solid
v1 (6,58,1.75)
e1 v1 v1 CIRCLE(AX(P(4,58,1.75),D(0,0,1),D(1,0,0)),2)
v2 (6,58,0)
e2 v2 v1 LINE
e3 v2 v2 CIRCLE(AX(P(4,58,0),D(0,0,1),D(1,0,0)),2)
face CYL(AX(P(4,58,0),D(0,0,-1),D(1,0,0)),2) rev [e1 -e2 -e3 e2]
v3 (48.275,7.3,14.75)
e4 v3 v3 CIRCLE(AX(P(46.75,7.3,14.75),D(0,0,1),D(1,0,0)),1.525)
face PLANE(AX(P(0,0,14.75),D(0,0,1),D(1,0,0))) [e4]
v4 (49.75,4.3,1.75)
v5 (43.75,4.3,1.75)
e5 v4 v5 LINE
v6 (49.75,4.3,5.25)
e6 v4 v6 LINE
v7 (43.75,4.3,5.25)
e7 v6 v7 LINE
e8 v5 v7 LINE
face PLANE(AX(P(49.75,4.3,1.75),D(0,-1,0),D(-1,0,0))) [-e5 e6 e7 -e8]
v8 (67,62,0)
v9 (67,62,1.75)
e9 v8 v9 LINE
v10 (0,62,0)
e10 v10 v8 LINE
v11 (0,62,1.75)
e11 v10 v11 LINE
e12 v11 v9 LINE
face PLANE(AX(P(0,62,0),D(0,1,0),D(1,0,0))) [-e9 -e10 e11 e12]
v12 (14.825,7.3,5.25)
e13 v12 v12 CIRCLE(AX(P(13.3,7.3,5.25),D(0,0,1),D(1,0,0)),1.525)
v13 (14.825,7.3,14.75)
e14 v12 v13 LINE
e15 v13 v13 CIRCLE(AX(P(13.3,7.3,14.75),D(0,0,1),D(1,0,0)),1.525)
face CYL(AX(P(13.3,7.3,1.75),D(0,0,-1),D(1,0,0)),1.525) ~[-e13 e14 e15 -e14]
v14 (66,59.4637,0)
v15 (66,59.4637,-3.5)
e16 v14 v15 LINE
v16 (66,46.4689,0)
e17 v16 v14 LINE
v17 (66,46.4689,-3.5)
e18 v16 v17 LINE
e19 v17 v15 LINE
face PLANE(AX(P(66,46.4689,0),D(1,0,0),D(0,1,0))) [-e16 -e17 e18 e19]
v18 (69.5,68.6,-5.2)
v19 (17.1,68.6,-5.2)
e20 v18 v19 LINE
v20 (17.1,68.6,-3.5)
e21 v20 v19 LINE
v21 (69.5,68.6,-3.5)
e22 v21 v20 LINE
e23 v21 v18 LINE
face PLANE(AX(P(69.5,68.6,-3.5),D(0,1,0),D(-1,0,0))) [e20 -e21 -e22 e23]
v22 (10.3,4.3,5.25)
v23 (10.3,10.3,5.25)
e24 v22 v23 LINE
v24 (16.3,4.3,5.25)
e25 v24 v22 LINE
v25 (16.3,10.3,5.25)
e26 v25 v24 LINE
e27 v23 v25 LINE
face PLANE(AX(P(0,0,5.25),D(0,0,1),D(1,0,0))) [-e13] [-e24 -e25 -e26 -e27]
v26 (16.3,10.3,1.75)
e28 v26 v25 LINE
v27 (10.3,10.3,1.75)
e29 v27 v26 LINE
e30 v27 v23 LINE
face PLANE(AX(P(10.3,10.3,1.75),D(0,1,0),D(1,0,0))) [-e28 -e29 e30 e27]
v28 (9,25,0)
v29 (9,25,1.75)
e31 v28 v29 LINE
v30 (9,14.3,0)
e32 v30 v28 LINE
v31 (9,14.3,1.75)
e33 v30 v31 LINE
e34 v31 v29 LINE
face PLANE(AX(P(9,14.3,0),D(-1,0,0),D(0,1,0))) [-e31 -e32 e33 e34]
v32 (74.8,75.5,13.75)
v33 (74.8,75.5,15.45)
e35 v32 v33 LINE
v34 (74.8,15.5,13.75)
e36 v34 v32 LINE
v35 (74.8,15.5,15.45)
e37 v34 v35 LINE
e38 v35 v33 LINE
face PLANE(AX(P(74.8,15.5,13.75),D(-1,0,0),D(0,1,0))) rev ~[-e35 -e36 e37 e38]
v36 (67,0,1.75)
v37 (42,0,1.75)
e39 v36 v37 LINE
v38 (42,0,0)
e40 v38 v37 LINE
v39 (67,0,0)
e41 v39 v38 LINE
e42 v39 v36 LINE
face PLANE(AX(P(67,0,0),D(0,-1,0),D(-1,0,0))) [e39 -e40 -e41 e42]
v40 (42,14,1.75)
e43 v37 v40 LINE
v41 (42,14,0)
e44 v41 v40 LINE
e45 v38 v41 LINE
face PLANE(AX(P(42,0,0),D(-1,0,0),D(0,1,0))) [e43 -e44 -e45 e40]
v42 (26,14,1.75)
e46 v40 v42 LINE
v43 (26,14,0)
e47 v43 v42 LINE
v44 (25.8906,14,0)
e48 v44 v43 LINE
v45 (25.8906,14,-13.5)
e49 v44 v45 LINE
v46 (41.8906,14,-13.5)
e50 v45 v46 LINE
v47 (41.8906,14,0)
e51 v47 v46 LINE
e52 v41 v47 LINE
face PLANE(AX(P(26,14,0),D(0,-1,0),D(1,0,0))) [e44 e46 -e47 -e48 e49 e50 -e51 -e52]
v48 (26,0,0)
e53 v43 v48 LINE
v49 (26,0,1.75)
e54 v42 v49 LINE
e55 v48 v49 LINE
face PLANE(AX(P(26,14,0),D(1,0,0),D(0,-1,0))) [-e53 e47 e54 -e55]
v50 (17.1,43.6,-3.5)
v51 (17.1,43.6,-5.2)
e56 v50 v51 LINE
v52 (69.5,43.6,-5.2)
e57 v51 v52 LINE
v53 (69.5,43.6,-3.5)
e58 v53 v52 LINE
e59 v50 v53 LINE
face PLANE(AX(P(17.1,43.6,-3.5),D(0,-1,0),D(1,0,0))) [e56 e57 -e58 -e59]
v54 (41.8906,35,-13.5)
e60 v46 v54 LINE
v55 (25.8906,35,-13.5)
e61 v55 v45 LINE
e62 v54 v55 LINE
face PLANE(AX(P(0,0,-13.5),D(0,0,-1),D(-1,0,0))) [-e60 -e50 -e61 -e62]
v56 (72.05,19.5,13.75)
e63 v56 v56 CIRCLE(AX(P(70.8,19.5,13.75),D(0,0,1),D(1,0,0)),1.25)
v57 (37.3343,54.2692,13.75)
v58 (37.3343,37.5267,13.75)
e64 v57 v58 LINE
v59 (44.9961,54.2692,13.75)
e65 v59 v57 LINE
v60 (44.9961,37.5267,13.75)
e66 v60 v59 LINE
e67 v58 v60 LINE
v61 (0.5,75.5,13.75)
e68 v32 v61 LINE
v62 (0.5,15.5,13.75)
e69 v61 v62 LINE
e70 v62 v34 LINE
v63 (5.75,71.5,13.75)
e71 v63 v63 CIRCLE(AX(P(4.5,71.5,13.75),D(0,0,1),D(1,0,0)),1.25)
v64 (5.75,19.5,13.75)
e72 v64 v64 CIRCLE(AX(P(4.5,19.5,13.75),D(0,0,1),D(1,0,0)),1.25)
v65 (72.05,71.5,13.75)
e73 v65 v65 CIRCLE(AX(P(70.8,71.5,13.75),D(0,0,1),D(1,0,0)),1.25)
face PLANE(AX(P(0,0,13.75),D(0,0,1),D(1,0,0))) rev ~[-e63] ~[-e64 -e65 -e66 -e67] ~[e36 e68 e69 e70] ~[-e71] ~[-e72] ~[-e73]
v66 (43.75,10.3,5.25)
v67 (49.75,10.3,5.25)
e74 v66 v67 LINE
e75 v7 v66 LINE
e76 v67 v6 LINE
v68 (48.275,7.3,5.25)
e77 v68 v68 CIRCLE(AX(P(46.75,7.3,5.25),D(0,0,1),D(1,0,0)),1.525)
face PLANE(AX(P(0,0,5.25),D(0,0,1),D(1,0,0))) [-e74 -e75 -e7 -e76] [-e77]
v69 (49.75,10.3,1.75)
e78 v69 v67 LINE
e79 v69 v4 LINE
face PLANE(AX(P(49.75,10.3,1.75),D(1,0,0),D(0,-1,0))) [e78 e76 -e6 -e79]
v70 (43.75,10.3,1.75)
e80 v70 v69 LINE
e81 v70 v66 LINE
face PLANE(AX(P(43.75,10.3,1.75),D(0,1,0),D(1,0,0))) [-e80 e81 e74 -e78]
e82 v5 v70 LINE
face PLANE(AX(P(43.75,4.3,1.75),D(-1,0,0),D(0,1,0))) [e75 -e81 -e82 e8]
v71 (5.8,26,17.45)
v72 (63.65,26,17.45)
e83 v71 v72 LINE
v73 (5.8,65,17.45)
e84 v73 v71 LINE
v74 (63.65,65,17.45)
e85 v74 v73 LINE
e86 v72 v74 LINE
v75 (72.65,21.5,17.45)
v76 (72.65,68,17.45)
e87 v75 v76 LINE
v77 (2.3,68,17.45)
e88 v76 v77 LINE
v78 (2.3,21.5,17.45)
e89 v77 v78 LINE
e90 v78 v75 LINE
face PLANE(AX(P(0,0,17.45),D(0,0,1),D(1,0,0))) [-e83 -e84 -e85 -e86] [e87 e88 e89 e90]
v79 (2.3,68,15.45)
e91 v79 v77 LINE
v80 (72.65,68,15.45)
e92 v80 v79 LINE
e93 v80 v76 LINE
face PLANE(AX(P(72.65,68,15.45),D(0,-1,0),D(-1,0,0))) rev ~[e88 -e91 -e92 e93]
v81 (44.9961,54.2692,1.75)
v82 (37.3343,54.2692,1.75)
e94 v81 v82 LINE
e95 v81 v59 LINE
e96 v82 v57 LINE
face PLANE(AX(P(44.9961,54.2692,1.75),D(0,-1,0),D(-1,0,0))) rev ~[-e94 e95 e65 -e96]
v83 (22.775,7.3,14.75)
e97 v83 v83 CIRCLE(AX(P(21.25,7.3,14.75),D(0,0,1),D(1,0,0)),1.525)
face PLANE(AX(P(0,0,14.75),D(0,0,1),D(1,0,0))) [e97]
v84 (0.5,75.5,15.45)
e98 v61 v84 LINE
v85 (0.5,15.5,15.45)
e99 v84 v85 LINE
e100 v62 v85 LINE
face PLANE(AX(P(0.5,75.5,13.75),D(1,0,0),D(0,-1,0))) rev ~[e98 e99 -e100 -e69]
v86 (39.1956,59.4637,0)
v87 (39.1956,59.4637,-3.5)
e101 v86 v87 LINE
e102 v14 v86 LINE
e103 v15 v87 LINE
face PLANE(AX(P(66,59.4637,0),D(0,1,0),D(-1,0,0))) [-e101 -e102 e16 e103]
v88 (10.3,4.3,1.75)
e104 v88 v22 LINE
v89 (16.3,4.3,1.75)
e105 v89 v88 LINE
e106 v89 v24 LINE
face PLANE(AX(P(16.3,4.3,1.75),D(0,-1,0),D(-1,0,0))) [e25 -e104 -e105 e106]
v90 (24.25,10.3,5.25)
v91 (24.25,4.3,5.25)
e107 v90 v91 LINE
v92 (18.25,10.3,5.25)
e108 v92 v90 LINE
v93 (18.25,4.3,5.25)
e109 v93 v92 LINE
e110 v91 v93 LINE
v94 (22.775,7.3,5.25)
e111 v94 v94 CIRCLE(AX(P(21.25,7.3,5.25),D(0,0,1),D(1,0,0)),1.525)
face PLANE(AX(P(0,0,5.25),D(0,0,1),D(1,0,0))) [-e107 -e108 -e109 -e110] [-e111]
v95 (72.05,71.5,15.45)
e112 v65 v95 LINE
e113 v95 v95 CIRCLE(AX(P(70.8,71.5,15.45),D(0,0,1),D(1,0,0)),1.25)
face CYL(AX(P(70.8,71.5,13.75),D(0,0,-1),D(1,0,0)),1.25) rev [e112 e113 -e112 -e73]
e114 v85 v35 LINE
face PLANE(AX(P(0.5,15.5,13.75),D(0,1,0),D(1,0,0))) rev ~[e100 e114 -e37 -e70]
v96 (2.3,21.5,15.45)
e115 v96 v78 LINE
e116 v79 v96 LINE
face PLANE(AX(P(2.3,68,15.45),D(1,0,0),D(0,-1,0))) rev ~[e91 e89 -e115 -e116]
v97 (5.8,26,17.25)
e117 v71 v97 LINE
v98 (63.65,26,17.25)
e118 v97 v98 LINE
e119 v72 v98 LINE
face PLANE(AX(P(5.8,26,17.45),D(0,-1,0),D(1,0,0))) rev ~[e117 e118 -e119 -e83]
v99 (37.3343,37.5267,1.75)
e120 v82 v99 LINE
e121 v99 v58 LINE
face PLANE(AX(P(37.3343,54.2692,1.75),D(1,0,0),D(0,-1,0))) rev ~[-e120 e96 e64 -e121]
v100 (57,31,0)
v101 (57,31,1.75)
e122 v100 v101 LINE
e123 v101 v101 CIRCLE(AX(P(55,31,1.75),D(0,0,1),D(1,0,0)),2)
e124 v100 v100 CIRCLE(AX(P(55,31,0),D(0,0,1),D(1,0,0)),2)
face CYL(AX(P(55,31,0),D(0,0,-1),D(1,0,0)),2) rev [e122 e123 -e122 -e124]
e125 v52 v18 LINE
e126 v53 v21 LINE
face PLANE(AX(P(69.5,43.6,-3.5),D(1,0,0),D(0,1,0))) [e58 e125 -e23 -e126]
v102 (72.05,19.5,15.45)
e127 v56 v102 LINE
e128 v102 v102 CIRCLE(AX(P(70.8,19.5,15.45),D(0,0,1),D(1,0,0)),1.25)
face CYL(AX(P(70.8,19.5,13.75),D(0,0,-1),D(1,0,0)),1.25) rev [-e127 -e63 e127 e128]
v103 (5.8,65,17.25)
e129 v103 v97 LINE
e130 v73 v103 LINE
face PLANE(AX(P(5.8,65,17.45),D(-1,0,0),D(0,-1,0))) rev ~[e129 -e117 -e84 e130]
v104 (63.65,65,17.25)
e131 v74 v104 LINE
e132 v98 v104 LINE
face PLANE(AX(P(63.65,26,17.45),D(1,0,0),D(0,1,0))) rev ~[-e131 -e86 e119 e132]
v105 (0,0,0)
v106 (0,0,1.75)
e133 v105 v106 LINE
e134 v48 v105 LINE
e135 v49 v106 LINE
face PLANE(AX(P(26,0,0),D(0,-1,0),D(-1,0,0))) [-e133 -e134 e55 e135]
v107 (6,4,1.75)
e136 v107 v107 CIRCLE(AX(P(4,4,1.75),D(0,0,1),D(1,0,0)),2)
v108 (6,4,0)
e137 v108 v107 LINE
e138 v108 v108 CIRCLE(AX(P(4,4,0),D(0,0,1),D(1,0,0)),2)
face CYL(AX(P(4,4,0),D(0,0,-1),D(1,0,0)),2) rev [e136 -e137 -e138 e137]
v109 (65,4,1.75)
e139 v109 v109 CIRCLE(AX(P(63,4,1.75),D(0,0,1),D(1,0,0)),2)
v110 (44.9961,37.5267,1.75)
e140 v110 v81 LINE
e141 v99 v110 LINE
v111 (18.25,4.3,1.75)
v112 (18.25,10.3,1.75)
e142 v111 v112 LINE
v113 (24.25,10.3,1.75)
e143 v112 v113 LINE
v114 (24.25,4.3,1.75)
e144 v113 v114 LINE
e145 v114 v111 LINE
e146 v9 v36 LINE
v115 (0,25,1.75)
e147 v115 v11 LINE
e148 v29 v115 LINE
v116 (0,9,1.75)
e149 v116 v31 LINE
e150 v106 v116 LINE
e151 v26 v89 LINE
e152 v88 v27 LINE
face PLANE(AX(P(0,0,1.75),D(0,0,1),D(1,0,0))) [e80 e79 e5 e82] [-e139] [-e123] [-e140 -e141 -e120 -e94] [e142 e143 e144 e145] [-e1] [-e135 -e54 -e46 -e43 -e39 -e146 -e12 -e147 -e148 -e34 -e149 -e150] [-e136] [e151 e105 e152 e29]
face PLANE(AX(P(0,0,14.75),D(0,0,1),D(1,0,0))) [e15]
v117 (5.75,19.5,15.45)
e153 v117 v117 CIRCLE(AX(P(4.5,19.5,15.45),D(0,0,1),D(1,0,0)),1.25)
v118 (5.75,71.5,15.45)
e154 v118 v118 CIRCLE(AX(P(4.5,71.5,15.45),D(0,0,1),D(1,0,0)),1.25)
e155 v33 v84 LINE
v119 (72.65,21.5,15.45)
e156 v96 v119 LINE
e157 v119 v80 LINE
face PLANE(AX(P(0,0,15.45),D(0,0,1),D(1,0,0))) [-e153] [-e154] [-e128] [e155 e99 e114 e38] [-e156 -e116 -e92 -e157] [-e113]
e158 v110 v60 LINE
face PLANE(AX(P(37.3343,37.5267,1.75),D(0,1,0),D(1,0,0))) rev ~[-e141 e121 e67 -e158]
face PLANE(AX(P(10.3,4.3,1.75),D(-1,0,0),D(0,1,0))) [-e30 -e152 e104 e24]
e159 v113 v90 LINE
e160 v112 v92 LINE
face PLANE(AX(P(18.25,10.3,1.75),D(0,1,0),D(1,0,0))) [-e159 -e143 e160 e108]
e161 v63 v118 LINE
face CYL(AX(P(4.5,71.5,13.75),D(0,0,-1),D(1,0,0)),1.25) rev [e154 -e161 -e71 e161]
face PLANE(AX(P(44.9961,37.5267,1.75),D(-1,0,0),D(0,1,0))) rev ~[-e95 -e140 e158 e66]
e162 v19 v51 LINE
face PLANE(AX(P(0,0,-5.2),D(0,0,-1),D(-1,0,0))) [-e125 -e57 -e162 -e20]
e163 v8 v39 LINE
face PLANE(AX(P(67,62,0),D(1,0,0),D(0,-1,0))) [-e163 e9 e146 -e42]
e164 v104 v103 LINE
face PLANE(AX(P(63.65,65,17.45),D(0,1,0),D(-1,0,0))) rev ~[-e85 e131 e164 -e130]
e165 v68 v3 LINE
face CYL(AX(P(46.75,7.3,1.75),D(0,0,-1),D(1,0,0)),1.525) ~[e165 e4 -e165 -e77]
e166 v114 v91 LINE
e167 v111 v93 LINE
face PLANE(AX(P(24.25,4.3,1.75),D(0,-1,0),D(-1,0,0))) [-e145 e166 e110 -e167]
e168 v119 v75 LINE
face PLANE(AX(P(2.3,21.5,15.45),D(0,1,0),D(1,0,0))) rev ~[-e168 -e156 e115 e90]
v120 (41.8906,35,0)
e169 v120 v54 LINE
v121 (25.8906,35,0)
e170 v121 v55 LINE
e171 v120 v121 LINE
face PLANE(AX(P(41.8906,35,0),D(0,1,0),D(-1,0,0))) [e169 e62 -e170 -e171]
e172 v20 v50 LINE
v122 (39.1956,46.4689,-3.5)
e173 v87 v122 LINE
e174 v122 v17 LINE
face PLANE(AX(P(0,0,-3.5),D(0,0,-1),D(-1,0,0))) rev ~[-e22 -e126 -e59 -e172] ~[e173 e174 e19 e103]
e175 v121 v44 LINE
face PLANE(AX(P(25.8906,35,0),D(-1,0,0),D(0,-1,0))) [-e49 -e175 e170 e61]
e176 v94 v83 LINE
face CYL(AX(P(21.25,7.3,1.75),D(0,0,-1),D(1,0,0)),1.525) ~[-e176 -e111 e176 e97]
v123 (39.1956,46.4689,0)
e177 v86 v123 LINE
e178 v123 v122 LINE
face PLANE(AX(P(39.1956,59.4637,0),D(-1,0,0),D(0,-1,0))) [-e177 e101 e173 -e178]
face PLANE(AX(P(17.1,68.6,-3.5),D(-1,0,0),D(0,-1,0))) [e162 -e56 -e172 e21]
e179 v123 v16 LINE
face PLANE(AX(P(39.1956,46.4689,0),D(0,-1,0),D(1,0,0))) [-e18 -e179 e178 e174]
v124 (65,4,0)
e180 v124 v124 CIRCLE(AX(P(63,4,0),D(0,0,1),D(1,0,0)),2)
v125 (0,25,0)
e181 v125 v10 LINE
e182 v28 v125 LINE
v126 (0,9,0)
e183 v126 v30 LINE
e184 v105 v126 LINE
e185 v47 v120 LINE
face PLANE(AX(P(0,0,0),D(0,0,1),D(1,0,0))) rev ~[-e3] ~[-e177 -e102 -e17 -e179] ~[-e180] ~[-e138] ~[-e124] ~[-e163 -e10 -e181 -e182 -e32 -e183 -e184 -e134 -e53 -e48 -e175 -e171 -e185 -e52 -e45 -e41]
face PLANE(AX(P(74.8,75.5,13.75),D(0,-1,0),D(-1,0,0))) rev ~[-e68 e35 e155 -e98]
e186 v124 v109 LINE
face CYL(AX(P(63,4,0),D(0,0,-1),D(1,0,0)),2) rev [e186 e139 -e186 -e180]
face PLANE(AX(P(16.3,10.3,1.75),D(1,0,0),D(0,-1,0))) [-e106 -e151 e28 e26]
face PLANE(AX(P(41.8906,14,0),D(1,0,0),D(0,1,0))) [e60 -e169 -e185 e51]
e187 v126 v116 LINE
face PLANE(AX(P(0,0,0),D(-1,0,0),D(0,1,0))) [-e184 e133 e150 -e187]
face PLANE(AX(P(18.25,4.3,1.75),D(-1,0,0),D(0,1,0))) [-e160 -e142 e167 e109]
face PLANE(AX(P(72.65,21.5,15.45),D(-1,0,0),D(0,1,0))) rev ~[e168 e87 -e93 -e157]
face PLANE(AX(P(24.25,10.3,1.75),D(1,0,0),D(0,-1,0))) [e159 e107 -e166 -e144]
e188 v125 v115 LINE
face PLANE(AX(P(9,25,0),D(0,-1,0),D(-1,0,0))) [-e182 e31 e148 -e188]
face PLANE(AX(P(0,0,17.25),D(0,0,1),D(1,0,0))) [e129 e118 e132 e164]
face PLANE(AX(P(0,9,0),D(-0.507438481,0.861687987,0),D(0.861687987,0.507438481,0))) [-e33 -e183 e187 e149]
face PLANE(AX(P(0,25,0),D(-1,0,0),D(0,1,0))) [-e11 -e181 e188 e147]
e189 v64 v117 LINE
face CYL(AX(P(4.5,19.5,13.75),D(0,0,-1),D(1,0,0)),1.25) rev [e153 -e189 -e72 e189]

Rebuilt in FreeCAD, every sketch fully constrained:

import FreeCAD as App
import Part
import Sketcher
from FreeCAD import Vector
Q = App.Units.Quantity

doc = App.newDocument("Part")
body = doc.addObject("PartDesign::Body", "Body")

sketch1 = body.newObject("Sketcher::SketchObject", "Sketch")
sketch1.AttachmentSupport = (doc.getObject("XY_Plane"), [""])
sketch1.MapMode = "FlatFace"
sketch1.addGeometry([
    Part.LineSegment(Vector(67, 62, 0), Vector(0, 62, 0)),
    Part.LineSegment(Vector(0, 62, 0), Vector(0, 25, 0)),
    Part.LineSegment(Vector(0, 25, 0), Vector(9, 25, 0)),
    Part.LineSegment(Vector(9, 25, 0), Vector(9, 14.3, 0)),
    Part.LineSegment(Vector(9, 14.3, 0), Vector(0, 9, 0)),
    Part.LineSegment(Vector(0, 9, 0), Vector(0, 0, 0)),
    Part.LineSegment(Vector(0, 0, 0), Vector(26, 0, 0)),
    Part.LineSegment(Vector(26, 0, 0), Vector(26, 14, 0)),
    Part.LineSegment(Vector(26, 14, 0), Vector(42, 14, 0)),
    Part.LineSegment(Vector(42, 14, 0), Vector(42, 0, 0)),
    Part.LineSegment(Vector(42, 0, 0), Vector(67, 0, 0)),
    Part.LineSegment(Vector(67, 0, 0), Vector(67, 62, 0)),
    Part.Circle(Vector(4, 4, 0), Vector(0, 0, 1), 2),
    Part.Circle(Vector(63, 4, 0), Vector(0, 0, 1), 2),
    Part.Circle(Vector(4, 58, 0), Vector(0, 0, 1), 2),
    Part.Circle(Vector(55, 31, 0), Vector(0, 0, 1), 2),
], False)
sketch1.addConstraint([
    Sketcher.Constraint("Coincident", 0, 2, 1, 1),
    Sketcher.Constraint("Coincident", 1, 2, 2, 1),
    Sketcher.Constraint("Coincident", 2, 2, 3, 1),
    Sketcher.Constraint("Coincident", 3, 2, 4, 1),
    Sketcher.Constraint("Coincident", 4, 2, 5, 1),
    Sketcher.Constraint("Coincident", 5, 2, 6, 1),
    Sketcher.Constraint("Coincident", 6, 2, 7, 1),
    Sketcher.Constraint("Coincident", 7, 2, 8, 1),
    Sketcher.Constraint("Coincident", 8, 2, 9, 1),
    Sketcher.Constraint("Coincident", 9, 2, 10, 1),
    Sketcher.Constraint("Coincident", 10, 2, 11, 1),
    Sketcher.Constraint("Coincident", 11, 2, 0, 1),
    Sketcher.Constraint("Horizontal", 0),
    Sketcher.Constraint("Vertical", 1),
    Sketcher.Constraint("Horizontal", 2),
    Sketcher.Constraint("Vertical", 3),
    Sketcher.Constraint("Vertical", 5),
    Sketcher.Constraint("Horizontal", 6),
    Sketcher.Constraint("Vertical", 7),
    Sketcher.Constraint("Horizontal", 8),
    Sketcher.Constraint("Vertical", 9),
    Sketcher.Constraint("Horizontal", 10),
    Sketcher.Constraint("Vertical", 11),
    Sketcher.Constraint("Coincident", 5, 2, -1, 1),
    Sketcher.Constraint("Equal", 12, 13),
    Sketcher.Constraint("Equal", 13, 14),
    Sketcher.Constraint("Equal", 14, 15),
    Sketcher.Constraint("PointOnObject", 0, 2, -2),
    Sketcher.Constraint("PointOnObject", 9, 2, -1),
    Sketcher.Constraint("Horizontal", 12, 3, 13, 3),
    Sketcher.Constraint("Vertical", 12, 3, 14, 3),
    Sketcher.Constraint("Equal", 2, 5),
    Sketcher.Constraint("Diameter", 12, Q("4 mm")),
    Sketcher.Constraint("DistanceX", 0, 2, 0, 1, Q("67 mm")),
    Sketcher.Constraint("DistanceX", 2, 1, 2, 2, Q("9 mm")),
    Sketcher.Constraint("DistanceX", 6, 1, 6, 2, Q("26 mm")),
    Sketcher.Constraint("DistanceX", 10, 1, 10, 2, Q("25 mm")),
    Sketcher.Constraint("DistanceY", 7, 1, 7, 2, Q("14 mm")),
    Sketcher.Constraint("DistanceY", 11, 1, 11, 2, Q("62 mm")),
    Sketcher.Constraint("DistanceX", -1, 1, 12, 3, Q("4 mm")),
    Sketcher.Constraint("DistanceY", -1, 1, 12, 3, Q("4 mm")),
    Sketcher.Constraint("DistanceX", -1, 1, 15, 3, Q("55 mm")),
    Sketcher.Constraint("DistanceY", -1, 1, 15, 3, Q("31 mm")),
    Sketcher.Constraint("DistanceY", -1, 1, 1, 2, Q("25 mm")),
    Sketcher.Constraint("DistanceY", 14, 3, 0, 2, Q("4 mm")),
    Sketcher.Constraint("DistanceX", 13, 3, 10, 2, Q("4 mm")),
    Sketcher.Constraint("DistanceY", -1, 1, 3, 2, Q("14.3 mm")),
])
pad1 = body.newObject("PartDesign::Pad", "Pad")
pad1.Profile = sketch1
pad1.Length = 1.75

sketch2 = body.newObject("Sketcher::SketchObject", "Sketch001")
sketch2.AttachmentSupport = (doc.getObject("XY_Plane"), [""])
sketch2.MapMode = "FlatFace"
sketch2.AttachmentOffset = App.Placement(Vector(0, 0, 1.75), App.Rotation())
sketch2.addGeometry([
    Part.LineSegment(Vector(49.8, 10.3, 0), Vector(43.8, 10.3, 0)),
    Part.LineSegment(Vector(43.8, 10.3, 0), Vector(43.8, 4.3, 0)),
    Part.LineSegment(Vector(43.8, 4.3, 0), Vector(49.8, 4.3, 0)),
    Part.LineSegment(Vector(49.8, 4.3, 0), Vector(49.8, 10.3, 0)),
    Part.Circle(Vector(46.8, 7.3, 0), Vector(0, 0, 1), 1.5),
    Part.LineSegment(Vector(24.2, 10.3, 0), Vector(18.2, 10.3, 0)),
    Part.LineSegment(Vector(18.2, 10.3, 0), Vector(18.2, 4.3, 0)),
    Part.LineSegment(Vector(18.2, 4.3, 0), Vector(24.2, 4.3, 0)),
    Part.LineSegment(Vector(24.2, 4.3, 0), Vector(24.2, 10.3, 0)),
    Part.Circle(Vector(21.2, 7.3, 0), Vector(0, 0, 1), 1.5),
    Part.LineSegment(Vector(16.3, 10.3, 0), Vector(10.3, 10.3, 0)),
    Part.LineSegment(Vector(10.3, 10.3, 0), Vector(10.3, 4.3, 0)),
    Part.LineSegment(Vector(10.3, 4.3, 0), Vector(16.3, 4.3, 0)),
    Part.LineSegment(Vector(16.3, 4.3, 0), Vector(16.3, 10.3, 0)),
    Part.Circle(Vector(13.3, 7.3, 0), Vector(0, 0, 1), 1.5),
], False)
sketch2.addConstraint([
    Sketcher.Constraint("Coincident", 0, 2, 1, 1),
    Sketcher.Constraint("Coincident", 1, 2, 2, 1),
    Sketcher.Constraint("Coincident", 2, 2, 3, 1),
    Sketcher.Constraint("Coincident", 3, 2, 0, 1),
    Sketcher.Constraint("Coincident", 5, 2, 6, 1),
    Sketcher.Constraint("Coincident", 6, 2, 7, 1),
    Sketcher.Constraint("Coincident", 7, 2, 8, 1),
    Sketcher.Constraint("Coincident", 8, 2, 5, 1),
    Sketcher.Constraint("Coincident", 10, 2, 11, 1),
    Sketcher.Constraint("Coincident", 11, 2, 12, 1),
    Sketcher.Constraint("Coincident", 12, 2, 13, 1),
    Sketcher.Constraint("Coincident", 13, 2, 10, 1),
    Sketcher.Constraint("Horizontal", 0),
    Sketcher.Constraint("Vertical", 1),
    Sketcher.Constraint("Horizontal", 2),
    Sketcher.Constraint("Vertical", 3),
    Sketcher.Constraint("Horizontal", 5),
    Sketcher.Constraint("Vertical", 6),
    Sketcher.Constraint("Horizontal", 7),
    Sketcher.Constraint("Vertical", 8),
    Sketcher.Constraint("Horizontal", 10),
    Sketcher.Constraint("Vertical", 11),
    Sketcher.Constraint("Horizontal", 12),
    Sketcher.Constraint("Vertical", 13),
    Sketcher.Constraint("Equal", 4, 9),
    Sketcher.Constraint("Equal", 9, 14),
    Sketcher.Constraint("Horizontal", 4, 3, 9, 3),
    Sketcher.Constraint("Horizontal", 9, 3, 14, 3),
    Sketcher.Constraint("Horizontal", 3, 2, 5, 2),
    Sketcher.Constraint("Horizontal", 2, 2, 6, 2),
    Sketcher.Constraint("Horizontal", 8, 2, 10, 2),
    Sketcher.Constraint("Horizontal", 7, 2, 11, 2),
    Sketcher.Constraint("Equal", 2, 5),
    Sketcher.Constraint("Equal", 7, 10),
    Sketcher.Constraint("Equal", 12, 1),
    Sketcher.Constraint("Diameter", 4, Q("3.05 mm")),
    Sketcher.Constraint("DistanceX", 0, 2, 0, 1, Q("6 mm")),
    Sketcher.Constraint("DistanceY", -1, 1, 4, 3, Q("7.3 mm")),
    Sketcher.Constraint("DistanceX", -1, 1, 14, 3, Q("13.3 mm")),
    Sketcher.Constraint("DistanceX", -1, 1, 4, 3, Q("46.75 mm")),
    Sketcher.Constraint("DistanceX", -1, 1, 9, 3, Q("21.25 mm")),
    Sketcher.Constraint("DistanceX", 0, 2, 4, 3, Q("3 mm")),
    Sketcher.Constraint("DistanceY", 4, 3, 0, 2, Q("3 mm")),
    Sketcher.Constraint("DistanceX", 5, 2, 9, 3, Q("3 mm")),
    Sketcher.Constraint("DistanceX", 10, 2, 14, 3, Q("3 mm")),
])
pad2 = body.newObject("PartDesign::Pad", "Pad001")
pad2.Profile = sketch2
pad2.Length = 3.5

sketch3 = body.newObject("Sketcher::SketchObject", "Sketch002")
sketch3.AttachmentSupport = (doc.getObject("XY_Plane"), [""])
sketch3.MapMode = "FlatFace"
sketch3.AttachmentOffset = App.Placement(Vector(0, 0, 1.75), App.Rotation())
sketch3.addGeometry([
    Part.Circle(Vector(13.3, 7.3, 0), Vector(0, 0, 1), 1.5),
    Part.Circle(Vector(21.2, 7.3, 0), Vector(0, 0, 1), 1.5),
    Part.Circle(Vector(46.8, 7.3, 0), Vector(0, 0, 1), 1.5),
], False)
sketch3.addConstraint([
    Sketcher.Constraint("Equal", 0, 1),
    Sketcher.Constraint("Equal", 1, 2),
    Sketcher.Constraint("Horizontal", 0, 3, 1, 3),
    Sketcher.Constraint("Horizontal", 1, 3, 2, 3),
    Sketcher.Constraint("Diameter", 0, Q("3.05 mm")),
    Sketcher.Constraint("DistanceX", -1, 1, 0, 3, Q("13.3 mm")),
    Sketcher.Constraint("DistanceY", -1, 1, 0, 3, Q("7.3 mm")),
    Sketcher.Constraint("DistanceX", -1, 1, 1, 3, Q("21.25 mm")),
    Sketcher.Constraint("DistanceX", -1, 1, 2, 3, Q("46.75 mm")),
])
pad3 = body.newObject("PartDesign::Pad", "Pad002")
pad3.Profile = sketch3
pad3.Length = 13

sketch4 = body.newObject("Sketcher::SketchObject", "Sketch003")
sketch4.AttachmentSupport = (doc.getObject("XY_Plane"), [""])
sketch4.MapMode = "FlatFace"
sketch4.AttachmentOffset = App.Placement(Vector(0, 0, 1.75), App.Rotation())
sketch4.addGeometry([
    Part.LineSegment(Vector(37, 54, 0), Vector(37, 38, 0)),
    Part.LineSegment(Vector(37, 38, 0), Vector(45, 38, 0)),
    Part.LineSegment(Vector(45, 38, 0), Vector(45, 54, 0)),
    Part.LineSegment(Vector(45, 54, 0), Vector(37, 54, 0)),
], False)
sketch4.addConstraint([
    Sketcher.Constraint("Coincident", 0, 2, 1, 1),
    Sketcher.Constraint("Coincident", 1, 2, 2, 1),
    Sketcher.Constraint("Coincident", 2, 2, 3, 1),
    Sketcher.Constraint("Coincident", 3, 2, 0, 1),
    Sketcher.Constraint("Vertical", 0),
    Sketcher.Constraint("Horizontal", 1),
    Sketcher.Constraint("Vertical", 2),
    Sketcher.Constraint("Horizontal", 3),
    Sketcher.Constraint("DistanceX", 1, 1, 1, 2, Q("7.6618 mm")),
    Sketcher.Constraint("DistanceY", 0, 2, 0, 1, Q("16.7425 mm")),
    Sketcher.Constraint("DistanceX", -1, 1, 1, 2, Q("44.996 mm")),
    Sketcher.Constraint("DistanceY", -1, 1, 0, 2, Q("37.5267 mm")),
])
pad4 = body.newObject("PartDesign::Pad", "Pad003")
pad4.Profile = sketch4
pad4.Length = 12

sketch5 = body.newObject("Sketcher::SketchObject", "Sketch004")
sketch5.AttachmentSupport = (doc.getObject("XY_Plane"), [""])
sketch5.MapMode = "FlatFace"
sketch5.AttachmentOffset = App.Placement(Vector(0, 0, 13.75), App.Rotation())
sketch5.addGeometry([
    Part.LineSegment(Vector(0.5, 75.5, 0), Vector(0.5, 15.5, 0)),
    Part.LineSegment(Vector(0.5, 15.5, 0), Vector(74.8, 15.5, 0)),
    Part.LineSegment(Vector(74.8, 15.5, 0), Vector(74.8, 75.5, 0)),
    Part.LineSegment(Vector(74.8, 75.5, 0), Vector(0.5, 75.5, 0)),
    Part.Circle(Vector(4.5, 19.5, 0), Vector(0, 0, 1), 1.2),
    Part.Circle(Vector(70.8, 19.5, 0), Vector(0, 0, 1), 1.2),
    Part.Circle(Vector(4.5, 71.5, 0), Vector(0, 0, 1), 1.2),
    Part.Circle(Vector(70.8, 71.5, 0), Vector(0, 0, 1), 1.2),
], False)
sketch5.addConstraint([
    Sketcher.Constraint("Coincident", 0, 2, 1, 1),
    Sketcher.Constraint("Coincident", 1, 2, 2, 1),
    Sketcher.Constraint("Coincident", 2, 2, 3, 1),
    Sketcher.Constraint("Coincident", 3, 2, 0, 1),
    Sketcher.Constraint("Vertical", 0),
    Sketcher.Constraint("Horizontal", 1),
    Sketcher.Constraint("Vertical", 2),
    Sketcher.Constraint("Horizontal", 3),
    Sketcher.Constraint("Equal", 4, 5),
    Sketcher.Constraint("Equal", 5, 6),
    Sketcher.Constraint("Equal", 6, 7),
    Sketcher.Constraint("Horizontal", 4, 3, 5, 3),
    Sketcher.Constraint("Horizontal", 6, 3, 7, 3),
    Sketcher.Constraint("Vertical", 4, 3, 6, 3),
    Sketcher.Constraint("Vertical", 5, 3, 7, 3),
    Sketcher.Constraint("Diameter", 4, Q("2.5 mm")),
    Sketcher.Constraint("DistanceY", 0, 2, 0, 1, Q("60 mm")),
    Sketcher.Constraint("DistanceX", 1, 1, 1, 2, Q("74.3 mm")),
    Sketcher.Constraint("DistanceY", 4, 3, 6, 3, Q("52 mm")),
    Sketcher.Constraint("DistanceX", 0, 2, 4, 3, Q("4 mm")),
    Sketcher.Constraint("DistanceY", 0, 2, 4, 3, Q("4 mm")),
    Sketcher.Constraint("DistanceX", 5, 3, 1, 2, Q("4 mm")),
    Sketcher.Constraint("DistanceX", -1, 1, 0, 2, Q("0.5 mm")),
    Sketcher.Constraint("DistanceY", -1, 1, 4, 3, Q("19.5 mm")),
])
pad5 = body.newObject("PartDesign::Pad", "Pad004")
pad5.Profile = sketch5
pad5.Length = 1.7

sketch6 = body.newObject("Sketcher::SketchObject", "Sketch005")
sketch6.AttachmentSupport = (doc.getObject("XY_Plane"), [""])
sketch6.MapMode = "FlatFace"
sketch6.AttachmentOffset = App.Placement(Vector(0, 0, 15.45), App.Rotation())
sketch6.addGeometry([
    Part.LineSegment(Vector(2, 68, 0), Vector(2, 22, 0)),
    Part.LineSegment(Vector(2, 22, 0), Vector(73, 22, 0)),
    Part.LineSegment(Vector(73, 22, 0), Vector(73, 68, 0)),
    Part.LineSegment(Vector(73, 68, 0), Vector(2, 68, 0)),
], False)
sketch6.addConstraint([
    Sketcher.Constraint("Coincident", 0, 2, 1, 1),
    Sketcher.Constraint("Coincident", 1, 2, 2, 1),
    Sketcher.Constraint("Coincident", 2, 2, 3, 1),
    Sketcher.Constraint("Coincident", 3, 2, 0, 1),
    Sketcher.Constraint("Vertical", 0),
    Sketcher.Constraint("Horizontal", 1),
    Sketcher.Constraint("Vertical", 2),
    Sketcher.Constraint("Horizontal", 3),
    Sketcher.Constraint("DistanceY", 0, 2, 0, 1, Q("46.5 mm")),
    Sketcher.Constraint("DistanceY", -1, 1, 2, 2, Q("68 mm")),
    Sketcher.Constraint("DistanceX", 1, 1, 1, 2, Q("70.35 mm")),
    Sketcher.Constraint("DistanceX", -1, 1, 0, 2, Q("2.3 mm")),
])
pad6 = body.newObject("PartDesign::Pad", "Pad005")
pad6.Profile = sketch6
pad6.Length = 2

sketch7 = body.newObject("Sketcher::SketchObject", "Sketch006")
sketch7.AttachmentSupport = (doc.getObject("XY_Plane"), [""])
sketch7.MapMode = "FlatFace"
sketch7.AttachmentOffset = App.Placement(Vector(0, 0, 17.45), App.Rotation())
sketch7.addGeometry([
    Part.LineSegment(Vector(6, 65, 0), Vector(6, 26, 0)),
    Part.LineSegment(Vector(6, 26, 0), Vector(64, 26, 0)),
    Part.LineSegment(Vector(64, 26, 0), Vector(64, 65, 0)),
    Part.LineSegment(Vector(64, 65, 0), Vector(6, 65, 0)),
], False)
sketch7.addConstraint([
    Sketcher.Constraint("Coincident", 0, 2, 1, 1),
    Sketcher.Constraint("Coincident", 1, 2, 2, 1),
    Sketcher.Constraint("Coincident", 2, 2, 3, 1),
    Sketcher.Constraint("Coincident", 3, 2, 0, 1),
    Sketcher.Constraint("Vertical", 0),
    Sketcher.Constraint("Horizontal", 1),
    Sketcher.Constraint("Vertical", 2),
    Sketcher.Constraint("Horizontal", 3),
    Sketcher.Constraint("DistanceY", 0, 2, 0, 1, Q("39 mm")),
    Sketcher.Constraint("DistanceY", -1, 1, 0, 2, Q("26 mm")),
    Sketcher.Constraint("DistanceX", 1, 1, 1, 2, Q("57.85 mm")),
    Sketcher.Constraint("DistanceX", -1, 1, 0, 2, Q("5.8 mm")),
])
pocket1 = body.newObject("PartDesign::Pocket", "Pocket")
pocket1.Profile = sketch7
pocket1.Length = 0.2

sketch8 = body.newObject("Sketcher::SketchObject", "Sketch007")
sketch8.AttachmentSupport = (doc.getObject("XY_Plane"), [""])
sketch8.MapMode = "FlatFace"
sketch8.addGeometry([
    Part.LineSegment(Vector(39, 59, 0), Vector(66, 59, 0)),
    Part.LineSegment(Vector(66, 59, 0), Vector(66, 46, 0)),
    Part.LineSegment(Vector(66, 46, 0), Vector(39, 46, 0)),
    Part.LineSegment(Vector(39, 46, 0), Vector(39, 59, 0)),
], False)
sketch8.addConstraint([
    Sketcher.Constraint("Coincident", 0, 2, 1, 1),
    Sketcher.Constraint("Coincident", 1, 2, 2, 1),
    Sketcher.Constraint("Coincident", 2, 2, 3, 1),
    Sketcher.Constraint("Coincident", 3, 2, 0, 1),
    Sketcher.Constraint("Horizontal", 0),
    Sketcher.Constraint("Vertical", 1),
    Sketcher.Constraint("Horizontal", 2),
    Sketcher.Constraint("Vertical", 3),
    Sketcher.Constraint("DistanceX", -1, 1, 0, 2, Q("66 mm")),
    Sketcher.Constraint("DistanceX", 0, 1, 0, 2, Q("26.8044 mm")),
    Sketcher.Constraint("DistanceY", 1, 2, 1, 1, Q("12.9948 mm")),
    Sketcher.Constraint("DistanceY", -1, 1, 1, 2, Q("46.469 mm")),
])
pad7 = body.newObject("PartDesign::Pad", "Pad006")
pad7.Profile = sketch8
pad7.Length = 3.5
pad7.Reversed = True

sketch9 = body.newObject("Sketcher::SketchObject", "Sketch008")
sketch9.AttachmentSupport = (doc.getObject("XY_Plane"), [""])
sketch9.MapMode = "FlatFace"
sketch9.AttachmentOffset = App.Placement(Vector(0, 0, -3.5), App.Rotation())
sketch9.addGeometry([
    Part.LineSegment(Vector(17, 69, 0), Vector(70, 69, 0)),
    Part.LineSegment(Vector(70, 69, 0), Vector(70, 44, 0)),
    Part.LineSegment(Vector(70, 44, 0), Vector(17, 44, 0)),
    Part.LineSegment(Vector(17, 44, 0), Vector(17, 69, 0)),
], False)
sketch9.addConstraint([
    Sketcher.Constraint("Coincident", 0, 2, 1, 1),
    Sketcher.Constraint("Coincident", 1, 2, 2, 1),
    Sketcher.Constraint("Coincident", 2, 2, 3, 1),
    Sketcher.Constraint("Coincident", 3, 2, 0, 1),
    Sketcher.Constraint("Horizontal", 0),
    Sketcher.Constraint("Vertical", 1),
    Sketcher.Constraint("Horizontal", 2),
    Sketcher.Constraint("Vertical", 3),
    Sketcher.Constraint("DistanceY", 1, 2, 1, 1, Q("25 mm")),
    Sketcher.Constraint("DistanceX", 0, 1, 0, 2, Q("52.4 mm")),
    Sketcher.Constraint("DistanceX", -1, 1, 0, 2, Q("69.5 mm")),
    Sketcher.Constraint("DistanceY", -1, 1, 0, 2, Q("68.6 mm")),
])
pad8 = body.newObject("PartDesign::Pad", "Pad007")
pad8.Profile = sketch9
pad8.Length = 1.7
pad8.Reversed = True

sketch10 = body.newObject("Sketcher::SketchObject", "Sketch009")
sketch10.AttachmentSupport = (doc.getObject("XY_Plane"), [""])
sketch10.MapMode = "FlatFace"
sketch10.addGeometry([
    Part.LineSegment(Vector(42, 14, 0), Vector(26, 14, 0)),
    Part.LineSegment(Vector(26, 14, 0), Vector(26, 35, 0)),
    Part.LineSegment(Vector(26, 35, 0), Vector(42, 35, 0)),
    Part.LineSegment(Vector(42, 35, 0), Vector(42, 14, 0)),
], False)
sketch10.addConstraint([
    Sketcher.Constraint("Coincident", 0, 2, 1, 1),
    Sketcher.Constraint("Coincident", 1, 2, 2, 1),
    Sketcher.Constraint("Coincident", 2, 2, 3, 1),
    Sketcher.Constraint("Coincident", 3, 2, 0, 1),
    Sketcher.Constraint("Horizontal", 0),
    Sketcher.Constraint("Vertical", 1),
    Sketcher.Constraint("Horizontal", 2),
    Sketcher.Constraint("Vertical", 3),
    Sketcher.Constraint("DistanceX", 0, 2, 0, 1, Q("16 mm")),
    Sketcher.Constraint("DistanceY", 1, 1, 1, 2, Q("21 mm")),
    Sketcher.Constraint("DistanceY", -1, 1, 0, 2, Q("14 mm")),
    Sketcher.Constraint("DistanceX", -1, 1, 0, 2, Q("25.8906 mm")),
])
pad9 = body.newObject("PartDesign::Pad", "Pad008")
pad9.Profile = sketch10
pad9.Length = 13.5
pad9.Reversed = True

doc.recompute()
